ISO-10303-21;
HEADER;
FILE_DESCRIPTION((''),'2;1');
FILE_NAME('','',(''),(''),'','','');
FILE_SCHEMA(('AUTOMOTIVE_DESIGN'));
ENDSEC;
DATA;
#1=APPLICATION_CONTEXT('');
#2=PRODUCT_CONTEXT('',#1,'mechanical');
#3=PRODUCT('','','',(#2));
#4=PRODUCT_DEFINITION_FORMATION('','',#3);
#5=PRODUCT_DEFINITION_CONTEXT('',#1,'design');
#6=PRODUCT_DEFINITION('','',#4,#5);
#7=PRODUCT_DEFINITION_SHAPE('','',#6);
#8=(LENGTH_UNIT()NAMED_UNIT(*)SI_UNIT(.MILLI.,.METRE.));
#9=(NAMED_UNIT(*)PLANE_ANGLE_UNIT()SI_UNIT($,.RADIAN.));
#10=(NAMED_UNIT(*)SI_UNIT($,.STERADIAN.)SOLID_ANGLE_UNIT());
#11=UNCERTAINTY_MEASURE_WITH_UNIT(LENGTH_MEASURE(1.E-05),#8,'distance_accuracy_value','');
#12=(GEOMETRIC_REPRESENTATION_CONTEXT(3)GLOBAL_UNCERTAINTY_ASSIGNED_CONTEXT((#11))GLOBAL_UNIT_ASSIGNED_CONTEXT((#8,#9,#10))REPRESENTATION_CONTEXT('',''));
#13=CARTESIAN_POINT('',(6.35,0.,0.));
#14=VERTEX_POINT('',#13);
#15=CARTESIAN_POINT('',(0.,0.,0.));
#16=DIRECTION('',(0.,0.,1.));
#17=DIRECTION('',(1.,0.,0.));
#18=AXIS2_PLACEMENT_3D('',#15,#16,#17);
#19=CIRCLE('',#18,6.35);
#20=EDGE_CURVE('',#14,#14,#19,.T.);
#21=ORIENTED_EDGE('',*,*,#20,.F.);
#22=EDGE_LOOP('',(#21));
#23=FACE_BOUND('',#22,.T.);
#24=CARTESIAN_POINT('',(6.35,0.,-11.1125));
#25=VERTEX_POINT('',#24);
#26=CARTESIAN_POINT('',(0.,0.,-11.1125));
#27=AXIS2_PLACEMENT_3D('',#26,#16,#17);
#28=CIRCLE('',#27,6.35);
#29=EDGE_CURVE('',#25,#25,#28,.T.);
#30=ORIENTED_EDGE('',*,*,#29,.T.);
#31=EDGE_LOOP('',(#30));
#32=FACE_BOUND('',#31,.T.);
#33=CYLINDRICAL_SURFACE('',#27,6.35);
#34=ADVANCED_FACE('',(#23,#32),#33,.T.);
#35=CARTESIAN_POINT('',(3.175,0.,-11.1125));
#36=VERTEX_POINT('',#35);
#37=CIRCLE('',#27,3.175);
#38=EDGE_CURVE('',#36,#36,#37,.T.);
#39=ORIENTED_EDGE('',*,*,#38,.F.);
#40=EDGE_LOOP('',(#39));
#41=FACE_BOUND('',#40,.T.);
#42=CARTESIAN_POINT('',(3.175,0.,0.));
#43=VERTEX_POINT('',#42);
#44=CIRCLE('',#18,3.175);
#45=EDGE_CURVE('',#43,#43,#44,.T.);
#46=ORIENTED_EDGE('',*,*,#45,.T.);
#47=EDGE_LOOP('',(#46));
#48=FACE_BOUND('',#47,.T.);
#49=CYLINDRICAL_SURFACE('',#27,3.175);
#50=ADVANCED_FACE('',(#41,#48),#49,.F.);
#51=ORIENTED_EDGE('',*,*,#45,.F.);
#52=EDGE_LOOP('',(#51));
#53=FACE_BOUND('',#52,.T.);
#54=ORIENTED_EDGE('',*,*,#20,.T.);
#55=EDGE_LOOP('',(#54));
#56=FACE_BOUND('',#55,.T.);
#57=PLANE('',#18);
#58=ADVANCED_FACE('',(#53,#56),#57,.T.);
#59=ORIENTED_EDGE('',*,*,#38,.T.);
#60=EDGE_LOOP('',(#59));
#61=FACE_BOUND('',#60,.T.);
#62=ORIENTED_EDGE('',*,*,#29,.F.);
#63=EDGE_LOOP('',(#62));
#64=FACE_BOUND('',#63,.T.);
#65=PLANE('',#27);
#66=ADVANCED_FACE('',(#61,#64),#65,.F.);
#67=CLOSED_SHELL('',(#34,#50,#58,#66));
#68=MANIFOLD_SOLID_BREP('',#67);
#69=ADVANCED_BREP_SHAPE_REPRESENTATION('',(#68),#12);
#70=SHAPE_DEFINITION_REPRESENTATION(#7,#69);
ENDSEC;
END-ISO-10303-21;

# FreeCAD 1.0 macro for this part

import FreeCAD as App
import Part
import Sketcher
Q = App.Units.Quantity

doc = App.newDocument("Part")
body = doc.addObject("PartDesign::Body", "Body")

# Sketch on XY plane
sketch1 = body.newObject("Sketcher::SketchObject", "Sketch")
sketch1.AttachmentSupport = (doc.getObject("XY_Plane"), [""])
sketch1.MapMode = "FlatFace"
sketch1.addGeometry(Part.Circle(App.Vector(0, 0, 0), App.Vector(0, 0, 1), 6.3), False)
sketch1.addGeometry(Part.Circle(App.Vector(0, 0, 0), App.Vector(0, 0, 1), 3.2), False)
sketch1.addConstraint(Sketcher.Constraint("Coincident", 0, 3, -1, 1))
sketch1.addConstraint(Sketcher.Constraint("Coincident", 1, 3, -1, 1))
sketch1.addConstraint(Sketcher.Constraint("Diameter", 0, Q("0.5 in")))
sketch1.addConstraint(Sketcher.Constraint("Diameter", 1, Q("0.25 in")))
pad1 = body.newObject("PartDesign::Pad", "Pad")
pad1.Profile = sketch1
pad1.Length = Q("0.4375 in")
pad1.Reversed = True

doc.recompute()
